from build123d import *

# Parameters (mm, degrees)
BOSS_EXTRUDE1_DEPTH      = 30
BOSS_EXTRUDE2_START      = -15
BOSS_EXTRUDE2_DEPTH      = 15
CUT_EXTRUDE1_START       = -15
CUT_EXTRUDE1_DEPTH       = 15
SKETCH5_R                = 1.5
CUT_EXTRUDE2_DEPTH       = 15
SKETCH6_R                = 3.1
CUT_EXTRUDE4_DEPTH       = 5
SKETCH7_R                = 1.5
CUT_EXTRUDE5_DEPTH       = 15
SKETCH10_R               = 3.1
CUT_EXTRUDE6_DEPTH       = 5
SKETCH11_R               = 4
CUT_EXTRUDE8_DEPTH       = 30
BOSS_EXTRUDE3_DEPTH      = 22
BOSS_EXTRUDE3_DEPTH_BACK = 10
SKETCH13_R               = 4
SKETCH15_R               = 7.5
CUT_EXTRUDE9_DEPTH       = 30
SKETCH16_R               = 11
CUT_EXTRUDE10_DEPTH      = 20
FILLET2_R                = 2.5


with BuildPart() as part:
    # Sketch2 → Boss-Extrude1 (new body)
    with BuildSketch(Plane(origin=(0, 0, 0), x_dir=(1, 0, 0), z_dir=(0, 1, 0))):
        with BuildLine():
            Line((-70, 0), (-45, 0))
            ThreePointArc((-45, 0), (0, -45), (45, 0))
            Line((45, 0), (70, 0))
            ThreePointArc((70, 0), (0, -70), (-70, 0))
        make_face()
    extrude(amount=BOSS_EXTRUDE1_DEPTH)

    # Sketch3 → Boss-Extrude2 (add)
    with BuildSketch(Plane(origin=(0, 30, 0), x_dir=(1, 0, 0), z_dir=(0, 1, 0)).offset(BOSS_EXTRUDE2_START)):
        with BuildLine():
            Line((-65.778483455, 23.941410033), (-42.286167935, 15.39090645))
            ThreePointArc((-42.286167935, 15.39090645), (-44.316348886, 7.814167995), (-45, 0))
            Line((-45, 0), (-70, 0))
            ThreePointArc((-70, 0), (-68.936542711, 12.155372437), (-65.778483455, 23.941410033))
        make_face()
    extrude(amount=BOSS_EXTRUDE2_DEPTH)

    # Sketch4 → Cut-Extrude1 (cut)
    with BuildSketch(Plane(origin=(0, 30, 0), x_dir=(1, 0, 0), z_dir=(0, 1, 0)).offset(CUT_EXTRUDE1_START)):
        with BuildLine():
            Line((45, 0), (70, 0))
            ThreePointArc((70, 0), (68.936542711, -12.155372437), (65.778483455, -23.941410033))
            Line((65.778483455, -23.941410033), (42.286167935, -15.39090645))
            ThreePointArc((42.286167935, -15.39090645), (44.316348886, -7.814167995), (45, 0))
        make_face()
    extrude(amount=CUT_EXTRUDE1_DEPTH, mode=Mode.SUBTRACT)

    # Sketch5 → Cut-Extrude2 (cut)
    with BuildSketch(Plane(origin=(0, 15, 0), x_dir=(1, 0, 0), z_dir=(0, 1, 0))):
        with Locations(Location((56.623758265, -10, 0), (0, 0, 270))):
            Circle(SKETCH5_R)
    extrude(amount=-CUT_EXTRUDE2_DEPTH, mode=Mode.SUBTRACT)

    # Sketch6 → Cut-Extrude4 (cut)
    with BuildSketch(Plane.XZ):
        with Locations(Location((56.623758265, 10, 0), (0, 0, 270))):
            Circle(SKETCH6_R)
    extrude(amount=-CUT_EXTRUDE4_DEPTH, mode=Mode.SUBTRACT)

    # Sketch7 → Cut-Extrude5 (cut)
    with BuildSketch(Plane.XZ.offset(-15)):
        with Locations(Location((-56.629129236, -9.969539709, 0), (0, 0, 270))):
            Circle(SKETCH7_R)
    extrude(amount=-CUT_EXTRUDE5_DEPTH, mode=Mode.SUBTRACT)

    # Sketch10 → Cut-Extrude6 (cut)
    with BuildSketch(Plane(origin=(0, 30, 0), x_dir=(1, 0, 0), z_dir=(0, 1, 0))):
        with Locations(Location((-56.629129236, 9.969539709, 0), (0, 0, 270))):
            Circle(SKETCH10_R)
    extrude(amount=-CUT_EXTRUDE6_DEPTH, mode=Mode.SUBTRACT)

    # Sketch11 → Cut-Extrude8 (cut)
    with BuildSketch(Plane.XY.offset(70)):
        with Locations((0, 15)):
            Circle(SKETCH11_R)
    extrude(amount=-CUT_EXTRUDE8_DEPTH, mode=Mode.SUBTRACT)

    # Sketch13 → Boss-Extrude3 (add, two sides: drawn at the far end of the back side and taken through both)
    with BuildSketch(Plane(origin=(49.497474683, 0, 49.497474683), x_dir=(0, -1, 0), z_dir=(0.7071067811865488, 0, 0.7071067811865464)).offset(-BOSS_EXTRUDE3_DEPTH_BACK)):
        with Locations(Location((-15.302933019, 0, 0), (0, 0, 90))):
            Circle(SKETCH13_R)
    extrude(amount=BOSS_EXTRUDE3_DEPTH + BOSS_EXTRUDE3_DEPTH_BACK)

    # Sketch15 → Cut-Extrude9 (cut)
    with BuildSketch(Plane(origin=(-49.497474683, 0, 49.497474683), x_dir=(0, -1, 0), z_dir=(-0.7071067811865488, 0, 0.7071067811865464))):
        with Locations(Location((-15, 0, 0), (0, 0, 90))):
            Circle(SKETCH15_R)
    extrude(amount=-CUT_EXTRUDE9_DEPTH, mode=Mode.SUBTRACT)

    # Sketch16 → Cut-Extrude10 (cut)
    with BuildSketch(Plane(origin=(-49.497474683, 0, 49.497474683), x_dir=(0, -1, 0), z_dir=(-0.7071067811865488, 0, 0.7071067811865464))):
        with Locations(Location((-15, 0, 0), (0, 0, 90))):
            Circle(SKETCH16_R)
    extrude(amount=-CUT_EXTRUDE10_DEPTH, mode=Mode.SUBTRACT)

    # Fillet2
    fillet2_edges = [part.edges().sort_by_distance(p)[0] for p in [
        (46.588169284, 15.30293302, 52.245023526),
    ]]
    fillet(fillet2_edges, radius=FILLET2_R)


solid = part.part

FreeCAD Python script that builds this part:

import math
import FreeCAD as App
import Part
import Sketcher
from FreeCAD import Vector
Q = App.Units.Quantity


def edges_at(feature, points):
    """Names of the edges that pass closest to the given points."""
    edges = feature.Shape.Edges
    near = lambda p: min(range(len(edges)), key=lambda i: edges[i].distToShape(Part.Vertex(*p))[0])
    return sorted({f"Edge{near(p) + 1}" for p in points})

doc = App.newDocument("Part")
body = doc.addObject("PartDesign::Body", "Body")

# Sketch on XZ plane
sketch1 = body.newObject("Sketcher::SketchObject", "Sketch")
sketch1.AttachmentSupport = (doc.getObject("XZ_Plane"), [""])
sketch1.MapMode = "FlatFace"
sketch1.addGeometry(Part.LineSegment(Vector(-45, 0, 0), Vector(-70, 0, 0)), False)
sketch1.addGeometry(Part.ArcOfCircle(Part.Circle(Vector(0, 0, 0), Vector(0, 0, 1), 70), math.radians(0), math.radians(180)), False)
sketch1.addGeometry(Part.LineSegment(Vector(70, 0, 0), Vector(45, 0, 0)), False)
sketch1.addGeometry(Part.ArcOfCircle(Part.Circle(Vector(0, 0, 0), Vector(0, 0, 1), 45), math.radians(0), math.radians(180)), False)
sketch1.addConstraint(Sketcher.Constraint("Coincident", 0, 2, 1, 2))
sketch1.addConstraint(Sketcher.Constraint("Coincident", 1, 1, 2, 1))
sketch1.addConstraint(Sketcher.Constraint("Coincident", 2, 2, 3, 1))
sketch1.addConstraint(Sketcher.Constraint("Coincident", 3, 2, 0, 1))
sketch1.addConstraint(Sketcher.Constraint("Horizontal", 0))
sketch1.addConstraint(Sketcher.Constraint("Horizontal", 2))
sketch1.addConstraint(Sketcher.Constraint("Coincident", 1, 3, -1, 1))
sketch1.addConstraint(Sketcher.Constraint("Coincident", 3, 3, -1, 1))
sketch1.addConstraint(Sketcher.Constraint("PointOnObject", 0, 2, -1))
sketch1.addConstraint(Sketcher.Constraint("PointOnObject", 1, 1, -1))
sketch1.addConstraint(Sketcher.Constraint("Radius", 1, Q("70 mm")))
sketch1.addConstraint(Sketcher.Constraint("Radius", 3, Q("45 mm")))
pad1 = body.newObject("PartDesign::Pad", "Pad")
pad1.Profile = sketch1
pad1.Length = 30
pad1.Reversed = True

# Sketch on XZ plane
sketch2 = body.newObject("Sketcher::SketchObject", "Sketch001")
sketch2.AttachmentSupport = (doc.getObject("XZ_Plane"), [""])
sketch2.MapMode = "FlatFace"
sketch2.AttachmentOffset = App.Placement(Vector(0, 0, -15), App.Rotation())
sketch2.addGeometry(Part.LineSegment(Vector(-42.286168, -15.390906, 0), Vector(-65.778483, -23.94141, 0)), False)
sketch2.addGeometry(Part.ArcOfCircle(Part.Circle(Vector(0, 0, 0), Vector(0, 0, 1), 70), math.radians(180), math.radians(200)), False)
sketch2.addGeometry(Part.LineSegment(Vector(-70, 0, 0), Vector(-45, 0, 0)), False)
sketch2.addGeometry(Part.ArcOfCircle(Part.Circle(Vector(0, 0, 0), Vector(0, 0, 1), 45), math.radians(180), math.radians(200)), False)
sketch2.addConstraint(Sketcher.Constraint("Coincident", 0, 2, 1, 2))
sketch2.addConstraint(Sketcher.Constraint("Coincident", 1, 1, 2, 1))
sketch2.addConstraint(Sketcher.Constraint("Coincident", 2, 2, 3, 1))
sketch2.addConstraint(Sketcher.Constraint("Coincident", 3, 2, 0, 1))
sketch2.addConstraint(Sketcher.Constraint("Horizontal", 2))
sketch2.addConstraint(Sketcher.Constraint("Coincident", 1, 3, -1, 1))
sketch2.addConstraint(Sketcher.Constraint("Coincident", 3, 3, -1, 1))
sketch2.addConstraint(Sketcher.Constraint("PointOnObject", 1, 1, -1))
sketch2.addConstraint(Sketcher.Constraint("Radius", 1, Q("70 mm")))
sketch2.addConstraint(Sketcher.Constraint("Radius", 3, Q("45 mm")))
sketch2.addConstraint(Sketcher.Constraint("Angle", 0, Q("-160 deg")))
sketch2.addConstraint(Sketcher.Constraint("DistanceY", 0, 2, -1, 1, Q("23.94141 mm")))
pad2 = body.newObject("PartDesign::Pad", "Pad001")
pad2.Profile = sketch2
pad2.Length = 15
pad2.Reversed = True

# Sketch on XZ plane
sketch3 = body.newObject("Sketcher::SketchObject", "Sketch002")
sketch3.AttachmentSupport = (doc.getObject("XZ_Plane"), [""])
sketch3.MapMode = "FlatFace"
sketch3.AttachmentOffset = App.Placement(Vector(0, 0, -15), App.Rotation())
sketch3.addGeometry(Part.LineSegment(Vector(70, 0, 0), Vector(45, 0, 0)), False)
sketch3.addGeometry(Part.ArcOfCircle(Part.Circle(Vector(0, 0, 0), Vector(0, 0, 1), 45), math.radians(0), math.radians(20)), False)
sketch3.addGeometry(Part.LineSegment(Vector(42.286168, 15.390906, 0), Vector(65.778483, 23.94141, 0)), False)
sketch3.addGeometry(Part.ArcOfCircle(Part.Circle(Vector(0, 0, 0), Vector(0, 0, 1), 70), math.radians(0), math.radians(20)), False)
sketch3.addConstraint(Sketcher.Constraint("Coincident", 0, 2, 1, 1))
sketch3.addConstraint(Sketcher.Constraint("Coincident", 1, 2, 2, 1))
sketch3.addConstraint(Sketcher.Constraint("Coincident", 2, 2, 3, 2))
sketch3.addConstraint(Sketcher.Constraint("Coincident", 3, 1, 0, 1))
sketch3.addConstraint(Sketcher.Constraint("Horizontal", 0))
sketch3.addConstraint(Sketcher.Constraint("Coincident", 1, 3, -1, 1))
sketch3.addConstraint(Sketcher.Constraint("Coincident", 3, 3, -1, 1))
sketch3.addConstraint(Sketcher.Constraint("PointOnObject", 0, 2, -1))
sketch3.addConstraint(Sketcher.Constraint("Radius", 1, Q("45 mm")))
sketch3.addConstraint(Sketcher.Constraint("Radius", 3, Q("70 mm")))
sketch3.addConstraint(Sketcher.Constraint("Angle", 2, Q("20 deg")))
sketch3.addConstraint(Sketcher.Constraint("DistanceY", -1, 1, 2, 2, Q("23.94141 mm")))
pocket1 = body.newObject("PartDesign::Pocket", "Pocket")
pocket1.Profile = sketch3
pocket1.Length = 15

# Sketch on XZ plane
sketch4 = body.newObject("Sketcher::SketchObject", "Sketch003")
sketch4.AttachmentSupport = (doc.getObject("XZ_Plane"), [""])
sketch4.MapMode = "FlatFace"
sketch4.AttachmentOffset = App.Placement(Vector(0, 0, -15), App.Rotation())
sketch4.addGeometry(Part.Circle(Vector(56.623758, 10, 0), Vector(0, 0, 1), 1.5), False)
sketch4.addConstraint(Sketcher.Constraint("Diameter", 0, Q("3 mm")))
sketch4.addConstraint(Sketcher.Constraint("DistanceY", -1, 1, 0, 3, Q("10 mm")))
sketch4.addConstraint(Sketcher.Constraint("DistanceX", -1, 1, 0, 3, Q("56.623758 mm")))
pocket2 = body.newObject("PartDesign::Pocket", "Pocket001")
pocket2.Profile = sketch4
pocket2.Length = 15
pocket2.Reversed = True

# Sketch on XZ plane
sketch5 = body.newObject("Sketcher::SketchObject", "Sketch004")
sketch5.AttachmentSupport = (doc.getObject("XZ_Plane"), [""])
sketch5.MapMode = "FlatFace"
sketch5.addGeometry(Part.Circle(Vector(56.623758, 10, 0), Vector(0, 0, 1), 3.1), False)
sketch5.addConstraint(Sketcher.Constraint("Diameter", 0, Q("6.2 mm")))
sketch5.addConstraint(Sketcher.Constraint("DistanceY", -1, 1, 0, 3, Q("10 mm")))
sketch5.addConstraint(Sketcher.Constraint("DistanceX", -1, 1, 0, 3, Q("56.623758 mm")))
pocket3 = body.newObject("PartDesign::Pocket", "Pocket002")
pocket3.Profile = sketch5
pocket3.Length = 5

# Sketch on XZ plane
sketch6 = body.newObject("Sketcher::SketchObject", "Sketch005")
sketch6.AttachmentSupport = (doc.getObject("XZ_Plane"), [""])
sketch6.MapMode = "FlatFace"
sketch6.AttachmentOffset = App.Placement(Vector(0, 0, -15), App.Rotation())
sketch6.addGeometry(Part.Circle(Vector(-56.629129, -9.96954, 0), Vector(0, 0, 1), 1.5), False)
sketch6.addConstraint(Sketcher.Constraint("Diameter", 0, Q("3 mm")))
sketch6.addConstraint(Sketcher.Constraint("DistanceX", 0, 3, -1, 1, Q("56.629129 mm")))
sketch6.addConstraint(Sketcher.Constraint("DistanceY", 0, 3, -1, 1, Q("9.96954 mm")))
pocket4 = body.newObject("PartDesign::Pocket", "Pocket003")
pocket4.Profile = sketch6
pocket4.Length = 15

# Sketch on XZ plane
sketch7 = body.newObject("Sketcher::SketchObject", "Sketch006")
sketch7.AttachmentSupport = (doc.getObject("XZ_Plane"), [""])
sketch7.MapMode = "FlatFace"
sketch7.AttachmentOffset = App.Placement(Vector(0, 0, -30), App.Rotation())
sketch7.addGeometry(Part.Circle(Vector(-56.629129, -9.96954, 0), Vector(0, 0, 1), 3.1), False)
sketch7.addConstraint(Sketcher.Constraint("Diameter", 0, Q("6.2 mm")))
sketch7.addConstraint(Sketcher.Constraint("DistanceX", 0, 3, -1, 1, Q("56.629129 mm")))
sketch7.addConstraint(Sketcher.Constraint("DistanceY", 0, 3, -1, 1, Q("9.96954 mm")))
pocket5 = body.newObject("PartDesign::Pocket", "Pocket004")
pocket5.Profile = sketch7
pocket5.Length = 5
pocket5.Reversed = True

# Sketch on XY plane
sketch8 = body.newObject("Sketcher::SketchObject", "Sketch007")
sketch8.AttachmentSupport = (doc.getObject("XY_Plane"), [""])
sketch8.MapMode = "FlatFace"
sketch8.AttachmentOffset = App.Placement(Vector(0, 0, 70), App.Rotation())
sketch8.addGeometry(Part.Circle(Vector(0, 15, 0), Vector(0, 0, 1), 4), False)
sketch8.addConstraint(Sketcher.Constraint("PointOnObject", 0, 3, -2))
sketch8.addConstraint(Sketcher.Constraint("Diameter", 0, Q("8 mm")))
sketch8.addConstraint(Sketcher.Constraint("DistanceY", -1, 1, 0, 3, Q("15 mm")))
pocket6 = body.newObject("PartDesign::Pocket", "Pocket005")
pocket6.Profile = sketch8
pocket6.Length = 30

# Sketch on an angled plane
sketch9 = body.newObject("Sketcher::SketchObject", "Sketch008")
sketch9.Placement = App.Placement(Vector(49.497475, 0, 49.497475), App.Rotation(Vector(0, -1, 0), Vector(0.707106781, 0, -0.707106781), Vector(0.707106781, 0, 0.707106781), "ZXY"))
sketch9.addGeometry(Part.Circle(Vector(-15.302933, 0, 0), Vector(0, 0, 1), 4), False)
sketch9.addConstraint(Sketcher.Constraint("PointOnObject", 0, 3, -1))
sketch9.addConstraint(Sketcher.Constraint("Diameter", 0, Q("8 mm")))
sketch9.addConstraint(Sketcher.Constraint("DistanceX", 0, 3, -1, 1, Q("15.302933 mm")))
pad3 = body.newObject("PartDesign::Pad", "Pad002")
pad3.Profile = sketch9
pad3.Type = "TwoLengths"
pad3.Length = 22
pad3.Length2 = 10

# Sketch on an angled plane
sketch10 = body.newObject("Sketcher::SketchObject", "Sketch009")
sketch10.Placement = App.Placement(Vector(-49.497475, 0, 49.497475), App.Rotation(Vector(0, -1, 0), Vector(0.707106781, 0, 0.707106781), Vector(-0.707106781, 0, 0.707106781), "ZXY"))
sketch10.addGeometry(Part.Circle(Vector(-15, 0, 0), Vector(0, 0, 1), 7.5), False)
sketch10.addConstraint(Sketcher.Constraint("PointOnObject", 0, 3, -1))
sketch10.addConstraint(Sketcher.Constraint("Diameter", 0, Q("15 mm")))
sketch10.addConstraint(Sketcher.Constraint("DistanceX", 0, 3, -1, 1, Q("15 mm")))
pocket7 = body.newObject("PartDesign::Pocket", "Pocket006")
pocket7.Profile = sketch10
pocket7.Length = 30

# Sketch on an angled plane
sketch11 = body.newObject("Sketcher::SketchObject", "Sketch010")
sketch11.Placement = App.Placement(Vector(-49.497475, 0, 49.497475), App.Rotation(Vector(0, -1, 0), Vector(0.707106781, 0, 0.707106781), Vector(-0.707106781, 0, 0.707106781), "ZXY"))
sketch11.addGeometry(Part.Circle(Vector(-15, 0, 0), Vector(0, 0, 1), 11), False)
sketch11.addConstraint(Sketcher.Constraint("PointOnObject", 0, 3, -1))
sketch11.addConstraint(Sketcher.Constraint("Diameter", 0, Q("22 mm")))
sketch11.addConstraint(Sketcher.Constraint("DistanceX", 0, 3, -1, 1, Q("15 mm")))
pocket8 = body.newObject("PartDesign::Pocket", "Pocket007")
pocket8.Profile = sketch11
pocket8.Length = 20
doc.recompute()

fillet = body.newObject("PartDesign::Fillet", "Fillet")
fillet.Base = (pocket8, edges_at(pocket8, [(46.588, 15.303, 52.245)]))
fillet.Radius = 2.5

doc.recompute()
